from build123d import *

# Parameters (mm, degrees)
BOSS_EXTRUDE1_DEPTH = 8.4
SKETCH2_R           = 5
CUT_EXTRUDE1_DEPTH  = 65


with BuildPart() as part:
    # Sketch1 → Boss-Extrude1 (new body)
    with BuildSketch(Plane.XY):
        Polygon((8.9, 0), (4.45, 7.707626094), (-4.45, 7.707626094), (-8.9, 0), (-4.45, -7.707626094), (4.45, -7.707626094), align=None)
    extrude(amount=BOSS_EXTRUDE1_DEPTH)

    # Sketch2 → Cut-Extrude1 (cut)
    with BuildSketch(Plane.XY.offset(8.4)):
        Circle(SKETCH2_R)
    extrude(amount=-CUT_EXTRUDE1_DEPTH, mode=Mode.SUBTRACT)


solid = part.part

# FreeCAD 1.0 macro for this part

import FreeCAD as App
import Part
import Sketcher

V = App.Vector
Q = App.Units.Quantity


def add_polygon(sketch, points):
    """Adds a closed chain of lines whose ends are joined by coincident constraints."""
    first, n = sketch.GeometryCount, len(points)
    for a, b in zip(points, points[1:] + points[:1]):
        sketch.addGeometry(Part.LineSegment(App.Vector(*a, 0), App.Vector(*b, 0)), False)
    for i in range(n):
        sketch.addConstraint(Sketcher.Constraint("Coincident", first + i, 2, first + (i + 1) % n, 1))

doc = App.newDocument("Part")
body = doc.addObject("PartDesign::Body", "Body")

# Sketch on XY plane
sketch1 = body.newObject("Sketcher::SketchObject", "Sketch")
sketch1.AttachmentSupport = (doc.getObject("XY_Plane"), [""])
sketch1.MapMode = "FlatFace"
add_polygon(sketch1, [(8.9, 0), (4.45, 7.707626), (-4.45, 7.707626), (-8.9, 0), (-4.45, -7.707626), (4.45, -7.707626)])  # lines 0-5
sketch1.addConstraint([
    Sketcher.Constraint("Horizontal", 1),
    Sketcher.Constraint("Horizontal", 4),
    Sketcher.Constraint("Symmetric", 0, 2, 3, 2, -1, 1),
    Sketcher.Constraint("Symmetric", 2, 2, 5, 2, -1, 1),
    Sketcher.Constraint("PointOnObject", 2, 2, -1),
    Sketcher.Constraint("Parallel", 2, 5),
    Sketcher.Constraint("Vertical", 1, 2, 3, 2),
    Sketcher.Constraint("Angle", 0, Q("120 deg")),
    Sketcher.Constraint("DistanceX", 1, 2, 1, 1, Q("8.9 mm")),
    Sketcher.Constraint("Distance", 0, Q("8.9 mm")),
])
pad1 = body.newObject("PartDesign::Pad", "Pad")
pad1.Profile = sketch1
pad1.Length = 8.4

# Sketch on XY plane
sketch2 = body.newObject("Sketcher::SketchObject", "Sketch001")
sketch2.AttachmentSupport = (doc.getObject("XY_Plane"), [""])
sketch2.MapMode = "FlatFace"
sketch2.AttachmentOffset = App.Placement(V(0, 0, 8.4), App.Rotation())
sketch2.addGeometry(Part.Circle(V(0, 0, 0), V(0, 0, 1), 5), False)
sketch2.addConstraint([
    Sketcher.Constraint("Coincident", 0, 3, -1, 1),
    Sketcher.Constraint("Diameter", 0, Q("10 mm")),
])
pocket1 = body.newObject("PartDesign::Pocket", "Pocket")
pocket1.Profile = sketch2
pocket1.Length = 65

doc.recompute()
